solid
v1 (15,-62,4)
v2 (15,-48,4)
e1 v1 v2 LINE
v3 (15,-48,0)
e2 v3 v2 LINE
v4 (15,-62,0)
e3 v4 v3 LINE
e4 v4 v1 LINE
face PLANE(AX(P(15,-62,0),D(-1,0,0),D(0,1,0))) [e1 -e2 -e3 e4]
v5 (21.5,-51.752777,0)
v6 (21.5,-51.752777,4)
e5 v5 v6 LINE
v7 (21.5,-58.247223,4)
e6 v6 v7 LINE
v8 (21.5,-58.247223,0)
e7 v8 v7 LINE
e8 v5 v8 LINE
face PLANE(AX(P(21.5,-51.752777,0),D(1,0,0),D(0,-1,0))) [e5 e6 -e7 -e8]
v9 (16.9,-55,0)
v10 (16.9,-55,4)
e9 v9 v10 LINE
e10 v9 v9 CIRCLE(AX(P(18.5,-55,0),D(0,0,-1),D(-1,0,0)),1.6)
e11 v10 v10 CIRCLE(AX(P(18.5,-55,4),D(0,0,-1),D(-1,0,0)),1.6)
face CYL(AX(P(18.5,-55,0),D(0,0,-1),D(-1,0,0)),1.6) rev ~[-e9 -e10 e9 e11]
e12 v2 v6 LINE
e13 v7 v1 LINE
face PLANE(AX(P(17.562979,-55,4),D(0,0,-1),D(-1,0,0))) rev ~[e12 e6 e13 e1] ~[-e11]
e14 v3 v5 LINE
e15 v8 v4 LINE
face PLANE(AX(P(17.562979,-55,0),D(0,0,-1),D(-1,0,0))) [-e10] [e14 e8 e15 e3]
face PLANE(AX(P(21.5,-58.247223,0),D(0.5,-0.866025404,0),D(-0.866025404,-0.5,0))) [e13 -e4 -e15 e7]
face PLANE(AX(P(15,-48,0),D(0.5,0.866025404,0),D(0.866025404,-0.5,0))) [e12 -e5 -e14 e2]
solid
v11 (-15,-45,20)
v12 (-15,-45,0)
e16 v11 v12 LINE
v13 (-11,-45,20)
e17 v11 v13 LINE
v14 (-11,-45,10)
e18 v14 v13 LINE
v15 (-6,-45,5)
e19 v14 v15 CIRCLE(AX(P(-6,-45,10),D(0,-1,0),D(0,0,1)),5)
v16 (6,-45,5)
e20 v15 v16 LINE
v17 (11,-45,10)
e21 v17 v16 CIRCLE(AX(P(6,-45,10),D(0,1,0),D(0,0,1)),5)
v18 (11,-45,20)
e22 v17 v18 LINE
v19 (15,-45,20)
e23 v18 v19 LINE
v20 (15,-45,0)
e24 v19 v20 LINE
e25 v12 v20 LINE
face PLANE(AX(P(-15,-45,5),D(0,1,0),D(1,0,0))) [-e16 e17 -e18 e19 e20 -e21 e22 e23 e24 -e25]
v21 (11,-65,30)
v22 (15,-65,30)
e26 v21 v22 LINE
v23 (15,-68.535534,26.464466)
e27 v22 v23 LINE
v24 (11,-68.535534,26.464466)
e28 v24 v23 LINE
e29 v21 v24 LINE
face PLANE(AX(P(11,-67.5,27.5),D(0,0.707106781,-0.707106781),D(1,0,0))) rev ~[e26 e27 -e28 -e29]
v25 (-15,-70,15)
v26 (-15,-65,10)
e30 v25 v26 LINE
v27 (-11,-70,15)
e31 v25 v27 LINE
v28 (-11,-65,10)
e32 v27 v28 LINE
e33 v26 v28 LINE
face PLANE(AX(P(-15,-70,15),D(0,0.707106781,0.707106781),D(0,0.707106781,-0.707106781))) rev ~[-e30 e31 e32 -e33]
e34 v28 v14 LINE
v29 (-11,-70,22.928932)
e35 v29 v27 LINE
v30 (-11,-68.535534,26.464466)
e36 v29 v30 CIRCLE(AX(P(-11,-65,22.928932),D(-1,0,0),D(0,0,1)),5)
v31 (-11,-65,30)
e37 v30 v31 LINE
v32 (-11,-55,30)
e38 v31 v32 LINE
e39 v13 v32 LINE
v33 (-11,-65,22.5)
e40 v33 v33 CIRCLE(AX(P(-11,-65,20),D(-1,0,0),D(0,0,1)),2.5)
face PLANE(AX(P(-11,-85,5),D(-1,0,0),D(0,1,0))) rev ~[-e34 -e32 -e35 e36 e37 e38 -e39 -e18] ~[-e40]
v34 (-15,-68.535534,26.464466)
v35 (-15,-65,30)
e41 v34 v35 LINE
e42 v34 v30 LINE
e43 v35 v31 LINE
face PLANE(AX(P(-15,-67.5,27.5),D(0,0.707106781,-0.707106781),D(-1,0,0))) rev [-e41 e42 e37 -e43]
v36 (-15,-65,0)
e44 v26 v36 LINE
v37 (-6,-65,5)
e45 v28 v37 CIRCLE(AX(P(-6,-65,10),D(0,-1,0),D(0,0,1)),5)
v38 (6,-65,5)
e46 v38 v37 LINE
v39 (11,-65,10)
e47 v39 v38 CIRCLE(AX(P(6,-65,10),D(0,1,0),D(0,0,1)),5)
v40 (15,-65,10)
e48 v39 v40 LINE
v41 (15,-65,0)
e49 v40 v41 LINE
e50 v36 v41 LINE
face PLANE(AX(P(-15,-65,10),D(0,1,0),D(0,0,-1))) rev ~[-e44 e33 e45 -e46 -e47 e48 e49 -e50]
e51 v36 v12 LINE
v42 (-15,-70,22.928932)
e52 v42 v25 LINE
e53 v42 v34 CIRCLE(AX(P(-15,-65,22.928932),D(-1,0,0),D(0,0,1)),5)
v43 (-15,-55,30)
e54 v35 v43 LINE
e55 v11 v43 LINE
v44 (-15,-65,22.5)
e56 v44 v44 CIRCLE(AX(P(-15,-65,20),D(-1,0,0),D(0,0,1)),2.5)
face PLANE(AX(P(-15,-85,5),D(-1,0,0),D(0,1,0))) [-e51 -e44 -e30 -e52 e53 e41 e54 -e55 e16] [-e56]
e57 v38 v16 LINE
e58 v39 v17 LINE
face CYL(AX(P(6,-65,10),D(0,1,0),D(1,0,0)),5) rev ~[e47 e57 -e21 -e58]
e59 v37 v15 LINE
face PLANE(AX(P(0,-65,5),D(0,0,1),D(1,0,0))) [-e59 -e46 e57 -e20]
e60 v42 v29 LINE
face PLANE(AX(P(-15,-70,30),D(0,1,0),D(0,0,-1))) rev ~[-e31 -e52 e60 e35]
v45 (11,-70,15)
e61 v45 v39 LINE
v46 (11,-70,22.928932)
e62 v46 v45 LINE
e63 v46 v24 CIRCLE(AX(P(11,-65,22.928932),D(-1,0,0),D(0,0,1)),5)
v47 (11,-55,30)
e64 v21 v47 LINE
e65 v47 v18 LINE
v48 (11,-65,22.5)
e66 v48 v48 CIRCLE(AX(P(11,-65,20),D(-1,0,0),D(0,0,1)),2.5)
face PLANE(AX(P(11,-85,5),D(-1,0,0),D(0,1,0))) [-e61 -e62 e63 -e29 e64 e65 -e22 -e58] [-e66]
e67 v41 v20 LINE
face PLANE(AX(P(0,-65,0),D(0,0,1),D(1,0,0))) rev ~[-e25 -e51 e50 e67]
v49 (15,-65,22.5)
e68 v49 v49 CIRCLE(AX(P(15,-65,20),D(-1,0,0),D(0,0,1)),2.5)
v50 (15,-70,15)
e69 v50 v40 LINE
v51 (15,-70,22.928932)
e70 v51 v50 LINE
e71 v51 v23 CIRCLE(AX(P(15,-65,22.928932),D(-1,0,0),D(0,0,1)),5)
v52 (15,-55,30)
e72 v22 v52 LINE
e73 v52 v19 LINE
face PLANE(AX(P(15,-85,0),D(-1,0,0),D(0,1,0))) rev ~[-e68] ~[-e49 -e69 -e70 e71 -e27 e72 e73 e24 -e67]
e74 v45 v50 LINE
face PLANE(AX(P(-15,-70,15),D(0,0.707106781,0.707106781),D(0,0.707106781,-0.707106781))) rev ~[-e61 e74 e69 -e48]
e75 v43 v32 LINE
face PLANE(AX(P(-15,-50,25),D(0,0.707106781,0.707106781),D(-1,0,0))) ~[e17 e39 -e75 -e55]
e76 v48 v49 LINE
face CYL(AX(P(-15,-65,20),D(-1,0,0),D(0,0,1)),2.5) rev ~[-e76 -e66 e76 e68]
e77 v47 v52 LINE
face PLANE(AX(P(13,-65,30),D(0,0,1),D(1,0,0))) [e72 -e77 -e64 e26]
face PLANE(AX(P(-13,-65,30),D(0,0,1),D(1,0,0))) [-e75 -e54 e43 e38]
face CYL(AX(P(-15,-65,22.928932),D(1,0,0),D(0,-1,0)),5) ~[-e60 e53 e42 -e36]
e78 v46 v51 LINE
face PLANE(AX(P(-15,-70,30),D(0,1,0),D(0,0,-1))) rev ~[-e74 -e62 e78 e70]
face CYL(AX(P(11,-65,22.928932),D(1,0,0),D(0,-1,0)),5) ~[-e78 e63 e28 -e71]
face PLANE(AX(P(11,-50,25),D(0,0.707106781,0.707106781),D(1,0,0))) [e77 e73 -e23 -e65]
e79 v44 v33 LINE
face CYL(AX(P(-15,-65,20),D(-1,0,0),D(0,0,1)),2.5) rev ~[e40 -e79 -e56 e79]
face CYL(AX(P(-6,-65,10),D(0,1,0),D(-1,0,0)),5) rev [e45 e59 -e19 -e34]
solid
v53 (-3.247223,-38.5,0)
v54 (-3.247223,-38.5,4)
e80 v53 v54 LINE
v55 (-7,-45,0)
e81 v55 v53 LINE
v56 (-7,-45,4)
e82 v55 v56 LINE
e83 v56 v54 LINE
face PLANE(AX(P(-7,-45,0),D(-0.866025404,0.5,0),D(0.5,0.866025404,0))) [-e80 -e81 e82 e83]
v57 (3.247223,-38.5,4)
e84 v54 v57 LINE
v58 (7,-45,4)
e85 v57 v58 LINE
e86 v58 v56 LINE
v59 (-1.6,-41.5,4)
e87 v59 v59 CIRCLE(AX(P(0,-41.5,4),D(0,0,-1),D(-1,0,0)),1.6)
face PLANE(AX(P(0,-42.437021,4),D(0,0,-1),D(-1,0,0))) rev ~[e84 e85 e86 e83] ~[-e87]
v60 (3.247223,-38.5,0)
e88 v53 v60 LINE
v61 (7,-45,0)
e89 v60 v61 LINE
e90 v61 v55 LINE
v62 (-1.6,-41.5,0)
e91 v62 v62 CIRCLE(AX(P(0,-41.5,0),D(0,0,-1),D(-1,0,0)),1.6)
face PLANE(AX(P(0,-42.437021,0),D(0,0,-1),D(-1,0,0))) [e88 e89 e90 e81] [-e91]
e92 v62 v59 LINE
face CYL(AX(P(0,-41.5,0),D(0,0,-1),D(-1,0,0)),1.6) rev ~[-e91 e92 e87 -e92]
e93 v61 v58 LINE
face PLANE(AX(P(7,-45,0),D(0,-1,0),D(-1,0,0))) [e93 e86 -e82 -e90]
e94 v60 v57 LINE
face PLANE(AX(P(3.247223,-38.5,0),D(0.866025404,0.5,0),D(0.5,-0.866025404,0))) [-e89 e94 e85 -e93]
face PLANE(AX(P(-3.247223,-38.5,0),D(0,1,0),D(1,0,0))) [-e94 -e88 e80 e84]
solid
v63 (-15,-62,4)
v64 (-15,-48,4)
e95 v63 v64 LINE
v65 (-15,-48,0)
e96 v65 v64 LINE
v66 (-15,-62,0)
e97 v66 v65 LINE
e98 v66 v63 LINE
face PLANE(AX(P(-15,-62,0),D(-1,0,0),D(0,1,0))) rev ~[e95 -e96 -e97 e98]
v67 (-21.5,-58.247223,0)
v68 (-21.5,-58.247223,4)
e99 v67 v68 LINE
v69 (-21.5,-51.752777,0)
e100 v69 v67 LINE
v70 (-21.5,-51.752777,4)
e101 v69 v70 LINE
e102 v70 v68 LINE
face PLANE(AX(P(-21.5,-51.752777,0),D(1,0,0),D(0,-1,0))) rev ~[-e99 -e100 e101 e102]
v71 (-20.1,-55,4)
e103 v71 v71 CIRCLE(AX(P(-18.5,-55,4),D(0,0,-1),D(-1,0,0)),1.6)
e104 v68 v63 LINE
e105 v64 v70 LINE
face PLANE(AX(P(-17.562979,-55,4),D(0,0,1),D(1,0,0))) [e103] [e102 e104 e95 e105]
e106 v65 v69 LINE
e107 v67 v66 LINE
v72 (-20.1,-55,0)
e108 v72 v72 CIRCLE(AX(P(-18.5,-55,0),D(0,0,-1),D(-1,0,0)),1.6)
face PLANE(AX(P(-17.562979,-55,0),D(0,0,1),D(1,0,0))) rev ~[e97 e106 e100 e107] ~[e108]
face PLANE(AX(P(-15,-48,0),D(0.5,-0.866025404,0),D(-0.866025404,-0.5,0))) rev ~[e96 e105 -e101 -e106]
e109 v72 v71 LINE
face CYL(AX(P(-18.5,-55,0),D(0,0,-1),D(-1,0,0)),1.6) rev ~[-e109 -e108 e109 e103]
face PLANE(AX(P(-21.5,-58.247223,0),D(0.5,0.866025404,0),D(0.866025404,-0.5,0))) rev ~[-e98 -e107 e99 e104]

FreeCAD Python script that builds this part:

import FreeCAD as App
import Part
import Sketcher
from FreeCAD import Vector
Q = App.Units.Quantity


def edges_at(feature, points):
    """Names of the edges that pass closest to the given points."""
    edges = feature.Shape.Edges
    near = lambda p: min(range(len(edges)), key=lambda i: edges[i].distToShape(Part.Vertex(*p))[0])
    return sorted({f"Edge{near(p) + 1}" for p in points})


def add_polygon(sketch, points):
    """Adds a closed chain of lines whose ends are joined by coincident constraints."""
    first, n = sketch.GeometryCount, len(points)
    for a, b in zip(points, points[1:] + points[:1]):
        sketch.addGeometry(Part.LineSegment(App.Vector(*a, 0), App.Vector(*b, 0)), False)
    for i in range(n):
        sketch.addConstraint(Sketcher.Constraint("Coincident", first + i, 2, first + (i + 1) % n, 1))

doc = App.newDocument("Part")
params = doc.addObject("Spreadsheet::Sheet", "Params")
for row, (alias, value) in enumerate([
    ("sketch1_width", "30 mm"),
    ("sketch1_height", "40 mm"),
    ("pad1_length", "5 mm"),
    ("sketch2_width", "4 mm"),
    ("sketch2_height", "40 mm"),
    ("pad2_length", "25 mm"),
    ("chamfer_size", "10 mm"),
    ("sketch3_diameter", "5 mm"),
    ("pocket1_length", "76 mm"),
    ("sketch4_height", "15 mm"),
    ("sketch4_height2", "10 mm"),
    ("pocket2_length", "76 mm"),
    ("chamfer2_size", "5 mm"),
    ("fillet_radius", "5 mm"),
    ("fillet2_radius", "5 mm"),
    ("sketch5_diameter", "3.2 mm"),
    ("sketch5_width", "14 mm"),
    ("pad3_length", "4 mm"),
    ("sketch6_diameter", "3.2 mm"),
    ("sketch6_height", "14 mm"),
    ("pad4_length", "4 mm"),
    ("sketch7_diameter", "3.2 mm"),
    ("sketch7_height", "14 mm"),
    ("pad5_length", "4 mm"),
], start=1):
    params.set(f"A{row}", alias)
    params.set(f"B{row}", "=" + value)
    params.setAlias(f"B{row}", alias)

body = doc.addObject("PartDesign::Body", "Body")

# Sketch on XY plane
sketch1 = body.newObject("Sketcher::SketchObject", "Sketch")
sketch1.AttachmentSupport = (doc.getObject("XY_Plane"), [""])
sketch1.MapMode = "FlatFace"
add_polygon(sketch1, [(-15, -45), (-15, -85), (15, -85), (15, -45)])  # lines 0-3
sketch1.addConstraint([
    Sketcher.Constraint("Vertical", 0),
    Sketcher.Constraint("Horizontal", 1),
    Sketcher.Constraint("Vertical", 2),
    Sketcher.Constraint("Horizontal", 3),
    Sketcher.Constraint("DistanceX", 1, 1, 1, 2, Q("30 mm")),
    Sketcher.Constraint("DistanceY", 0, 2, 0, 1, Q("40 mm")),
    Sketcher.Constraint("DistanceX", 0, 2, -1, 1, Q("15 mm")),
    Sketcher.Constraint("DistanceY", 0, 2, -1, 1, Q("85 mm")),
])
sketch1.setExpression("Constraints[8]", "Params.sketch1_width")
sketch1.setExpression("Constraints[9]", "Params.sketch1_height")
pad1 = body.newObject("PartDesign::Pad", "Pad")
pad1.Profile = sketch1
pad1.setExpression("Length", "Params.pad1_length")

# Sketch on XY plane
sketch2 = body.newObject("Sketcher::SketchObject", "Sketch001")
sketch2.AttachmentSupport = (doc.getObject("XY_Plane"), [""])
sketch2.MapMode = "FlatFace"
sketch2.AttachmentOffset = App.Placement(Vector(0, 0, 5), App.Rotation())
add_polygon(sketch2, [(-15, -45), (-15, -85), (-11, -85), (-11, -45)])  # lines 0-3
add_polygon(sketch2, [(11, -45), (11, -85), (15, -85), (15, -45)])  # lines 4-7
sketch2.addConstraint([
    Sketcher.Constraint("Vertical", 0),
    Sketcher.Constraint("Horizontal", 1),
    Sketcher.Constraint("Vertical", 2),
    Sketcher.Constraint("Horizontal", 3),
    Sketcher.Constraint("Vertical", 4),
    Sketcher.Constraint("Horizontal", 5),
    Sketcher.Constraint("Vertical", 6),
    Sketcher.Constraint("Horizontal", 7),
    Sketcher.Constraint("Symmetric", 1, 2, 4, 2, -2),
    Sketcher.Constraint("Symmetric", 3, 2, 6, 2, -2),
    Sketcher.Constraint("DistanceX", 1, 1, 1, 2, Q("4 mm")),
    Sketcher.Constraint("DistanceY", 0, 2, 0, 1, Q("40 mm")),
    Sketcher.Constraint("DistanceX", 0, 2, -1, 1, Q("15 mm")),
    Sketcher.Constraint("DistanceY", 0, 2, -1, 1, Q("85 mm")),
])
sketch2.setExpression("Constraints[18]", "Params.sketch2_width")
sketch2.setExpression("Constraints[19]", "Params.sketch2_height")
pad2 = body.newObject("PartDesign::Pad", "Pad001")
pad2.Profile = sketch2
pad2.setExpression("Length", "Params.pad2_length")
doc.recompute()

chamfer = body.newObject("PartDesign::Chamfer", "Chamfer")
chamfer.Base = (pad2, edges_at(pad2, [
    (-13, -85, 30),
    (-13, -45, 30),
    (13, -45, 30),
    (13, -85, 30),
]))
chamfer.setExpression("Size", "Params.chamfer_size")

# Sketch on YZ plane
sketch3 = body.newObject("Sketcher::SketchObject", "Sketch002")
sketch3.AttachmentSupport = (doc.getObject("YZ_Plane"), [""])
sketch3.MapMode = "FlatFace"
sketch3.AttachmentOffset = App.Placement(Vector(0, 0, -15), App.Rotation())
sketch3.addGeometry(Part.Circle(Vector(-65, 20, 0), Vector(0, 0, 1), 2.5), False)
sketch3.addConstraint([
    Sketcher.Constraint("Diameter", 0, Q("5 mm")),
    Sketcher.Constraint("DistanceX", 0, 3, -1, 1, Q("65 mm")),
    Sketcher.Constraint("DistanceY", -1, 1, 0, 3, Q("20 mm")),
])
sketch3.setExpression("Constraints[0]", "Params.sketch3_diameter")
pocket1 = body.newObject("PartDesign::Pocket", "Pocket")
pocket1.Profile = sketch3
pocket1.setExpression("Length", "Params.pocket1_length")
pocket1.Reversed = True

# Sketch on YZ plane
sketch4 = body.newObject("Sketcher::SketchObject", "Sketch003")
sketch4.AttachmentSupport = (doc.getObject("YZ_Plane"), [""])
sketch4.MapMode = "FlatFace"
sketch4.AttachmentOffset = App.Placement(Vector(0, 0, -15), App.Rotation())
add_polygon(sketch4, [(-70, 30), (-70, 15), (-65, 10), (-65, 0), (-90, -5), (-87, 31)])  # lines 0-5
sketch4.addConstraint([
    Sketcher.Constraint("Vertical", 0),
    Sketcher.Constraint("Vertical", 2),
    Sketcher.Constraint("PointOnObject", 2, 2, -1),
    Sketcher.Constraint("Perpendicular", 4, 5),
    Sketcher.Constraint("DistanceY", 0, 2, 0, 1, Q("15 mm")),
    Sketcher.Constraint("DistanceY", 2, 2, 2, 1, Q("10 mm")),
    Sketcher.Constraint("Angle", 1, Q("-45 deg")),
    Sketcher.Constraint("DistanceX", 0, 2, -1, 1, Q("70 mm")),
    Sketcher.Constraint("DistanceY", -1, 1, 0, 2, Q("15 mm")),
    Sketcher.Constraint("DistanceX", 3, 2, 4, 2, Q("2.549801 mm")),
    Sketcher.Constraint("Distance", 4, Q("36.213981 mm")),
    Sketcher.Constraint("DistanceY", -1, 1, 4, 2, Q("31.217939 mm")),
])
sketch4.setExpression("Constraints[10]", "Params.sketch4_height")
sketch4.setExpression("Constraints[11]", "Params.sketch4_height2")
pocket2 = body.newObject("PartDesign::Pocket", "Pocket001")
pocket2.Profile = sketch4
pocket2.setExpression("Length", "Params.pocket2_length")
pocket2.Reversed = True
doc.recompute()

chamfer2 = body.newObject("PartDesign::Chamfer", "Chamfer001")
chamfer2.Base = (pocket2, edges_at(pocket2, [(13, -70, 30), (-13, -70, 30)]))
chamfer2.setExpression("Size", "Params.chamfer2_size")
doc.recompute()

fillet = body.newObject("PartDesign::Fillet", "Fillet")
fillet.Base = (chamfer2, edges_at(chamfer2, [(11, -55, 5), (-11, -55, 5)]))
fillet.setExpression("Radius", "Params.fillet_radius")
doc.recompute()

fillet2 = body.newObject("PartDesign::Fillet", "Fillet001")
fillet2.Base = (fillet, edges_at(fillet, [(-13, -70, 25), (13, -70, 25)]))
fillet2.setExpression("Radius", "Params.fillet2_radius")
body2 = doc.addObject("PartDesign::Body", "Body001")

# Sketch on XY plane
sketch5 = body2.newObject("Sketcher::SketchObject", "Sketch004")
sketch5.AttachmentSupport = (doc.getObject("XY_Plane001"), [""])
sketch5.MapMode = "FlatFace"
add_polygon(sketch5, [(-7, -45), (-3.2, -38.5), (3.2, -38.5), (7, -45)])  # lines 0-3
sketch5.addGeometry(Part.Circle(Vector(0, -41.5, 0), Vector(0, 0, 1), 1.6), False)  # 4
sketch5.addConstraint([
    Sketcher.Constraint("Horizontal", 1),
    Sketcher.Constraint("Horizontal", 3),
    Sketcher.Constraint("PointOnObject", 4, 3, -2),
    Sketcher.Constraint("Equal", 0, 2),
    Sketcher.Constraint("Diameter", 4, Q("3.2 mm")),
    Sketcher.Constraint("DistanceX", 3, 2, 3, 1, Q("14 mm")),
    Sketcher.Constraint("Angle", 0, Q("60 deg")),
    Sketcher.Constraint("DistanceX", -1, 1, 2, 2, Q("7 mm")),
    Sketcher.Constraint("DistanceY", 2, 2, -1, 1, Q("45 mm")),
    Sketcher.Constraint("DistanceY", 4, 3, 0, 2, Q("3 mm")),
    Sketcher.Constraint("DistanceY", 4, 3, -1, 1, Q("41.5 mm")),
])
sketch5.setExpression("Constraints[8]", "Params.sketch5_diameter")
sketch5.setExpression("Constraints[9]", "Params.sketch5_width")
pad3 = body2.newObject("PartDesign::Pad", "Pad002")
pad3.Profile = sketch5
pad3.setExpression("Length", "Params.pad3_length")
body3 = doc.addObject("PartDesign::Body", "Body002")

# Sketch on XY plane
sketch6 = body3.newObject("Sketcher::SketchObject", "Sketch005")
sketch6.AttachmentSupport = (doc.getObject("XY_Plane002"), [""])
sketch6.MapMode = "FlatFace"
add_polygon(sketch6, [(-21.5, -51.8), (-15, -48), (-15, -62), (-21.5, -58.2)])  # lines 0-3
sketch6.addGeometry(Part.Circle(Vector(-18.5, -55, 0), Vector(0, 0, 1), 1.6), False)  # 4
sketch6.addConstraint([
    Sketcher.Constraint("Vertical", 1),
    Sketcher.Constraint("Vertical", 3),
    Sketcher.Constraint("Equal", 0, 2),
    Sketcher.Constraint("Diameter", 4, Q("3.2 mm")),
    Sketcher.Constraint("DistanceY", 1, 2, 1, 1, Q("14 mm")),
    Sketcher.Constraint("Angle", 0, Q("30 deg")),
    Sketcher.Constraint("DistanceY", 4, 3, -1, 1, Q("55 mm")),
    Sketcher.Constraint("DistanceX", 0, 2, -1, 1, Q("15 mm")),
    Sketcher.Constraint("DistanceY", 0, 2, -1, 1, Q("48 mm")),
    Sketcher.Constraint("DistanceX", 2, 2, 4, 3, Q("3 mm")),
    Sketcher.Constraint("DistanceX", 4, 3, -1, 1, Q("18.5 mm")),
])
sketch6.setExpression("Constraints[7]", "Params.sketch6_diameter")
sketch6.setExpression("Constraints[8]", "Params.sketch6_height")
pad4 = body3.newObject("PartDesign::Pad", "Pad003")
pad4.Profile = sketch6
pad4.setExpression("Length", "Params.pad4_length")
body4 = doc.addObject("PartDesign::Body", "Body003")

# Sketch on XY plane
sketch7 = body4.newObject("Sketcher::SketchObject", "Sketch006")
sketch7.AttachmentSupport = (doc.getObject("XY_Plane003"), [""])
sketch7.MapMode = "FlatFace"
add_polygon(sketch7, [(15, -62), (15, -48), (21.5, -51.8), (21.5, -58.2)])  # lines 0-3
sketch7.addGeometry(Part.Circle(Vector(18.5, -55, 0), Vector(0, 0, 1), 1.6), False)  # 4
sketch7.addConstraint([
    Sketcher.Constraint("Vertical", 0),
    Sketcher.Constraint("Vertical", 2),
    Sketcher.Constraint("Equal", 1, 3),
    Sketcher.Constraint("Diameter", 4, Q("3.2 mm")),
    Sketcher.Constraint("DistanceY", 0, 1, 0, 2, Q("14 mm")),
    Sketcher.Constraint("Angle", 1, Q("-30 deg")),
    Sketcher.Constraint("DistanceY", 4, 3, -1, 1, Q("55 mm")),
    Sketcher.Constraint("DistanceX", -1, 1, 0, 2, Q("15 mm")),
    Sketcher.Constraint("DistanceY", 0, 2, -1, 1, Q("48 mm")),
    Sketcher.Constraint("DistanceX", 4, 3, 1, 2, Q("3 mm")),
    Sketcher.Constraint("DistanceX", -1, 1, 4, 3, Q("18.5 mm")),
])
sketch7.setExpression("Constraints[7]", "Params.sketch7_diameter")
sketch7.setExpression("Constraints[8]", "Params.sketch7_height")
pad5 = body4.newObject("PartDesign::Pad", "Pad004")
pad5.Profile = sketch7
pad5.setExpression("Length", "Params.pad5_length")

doc.recompute()
